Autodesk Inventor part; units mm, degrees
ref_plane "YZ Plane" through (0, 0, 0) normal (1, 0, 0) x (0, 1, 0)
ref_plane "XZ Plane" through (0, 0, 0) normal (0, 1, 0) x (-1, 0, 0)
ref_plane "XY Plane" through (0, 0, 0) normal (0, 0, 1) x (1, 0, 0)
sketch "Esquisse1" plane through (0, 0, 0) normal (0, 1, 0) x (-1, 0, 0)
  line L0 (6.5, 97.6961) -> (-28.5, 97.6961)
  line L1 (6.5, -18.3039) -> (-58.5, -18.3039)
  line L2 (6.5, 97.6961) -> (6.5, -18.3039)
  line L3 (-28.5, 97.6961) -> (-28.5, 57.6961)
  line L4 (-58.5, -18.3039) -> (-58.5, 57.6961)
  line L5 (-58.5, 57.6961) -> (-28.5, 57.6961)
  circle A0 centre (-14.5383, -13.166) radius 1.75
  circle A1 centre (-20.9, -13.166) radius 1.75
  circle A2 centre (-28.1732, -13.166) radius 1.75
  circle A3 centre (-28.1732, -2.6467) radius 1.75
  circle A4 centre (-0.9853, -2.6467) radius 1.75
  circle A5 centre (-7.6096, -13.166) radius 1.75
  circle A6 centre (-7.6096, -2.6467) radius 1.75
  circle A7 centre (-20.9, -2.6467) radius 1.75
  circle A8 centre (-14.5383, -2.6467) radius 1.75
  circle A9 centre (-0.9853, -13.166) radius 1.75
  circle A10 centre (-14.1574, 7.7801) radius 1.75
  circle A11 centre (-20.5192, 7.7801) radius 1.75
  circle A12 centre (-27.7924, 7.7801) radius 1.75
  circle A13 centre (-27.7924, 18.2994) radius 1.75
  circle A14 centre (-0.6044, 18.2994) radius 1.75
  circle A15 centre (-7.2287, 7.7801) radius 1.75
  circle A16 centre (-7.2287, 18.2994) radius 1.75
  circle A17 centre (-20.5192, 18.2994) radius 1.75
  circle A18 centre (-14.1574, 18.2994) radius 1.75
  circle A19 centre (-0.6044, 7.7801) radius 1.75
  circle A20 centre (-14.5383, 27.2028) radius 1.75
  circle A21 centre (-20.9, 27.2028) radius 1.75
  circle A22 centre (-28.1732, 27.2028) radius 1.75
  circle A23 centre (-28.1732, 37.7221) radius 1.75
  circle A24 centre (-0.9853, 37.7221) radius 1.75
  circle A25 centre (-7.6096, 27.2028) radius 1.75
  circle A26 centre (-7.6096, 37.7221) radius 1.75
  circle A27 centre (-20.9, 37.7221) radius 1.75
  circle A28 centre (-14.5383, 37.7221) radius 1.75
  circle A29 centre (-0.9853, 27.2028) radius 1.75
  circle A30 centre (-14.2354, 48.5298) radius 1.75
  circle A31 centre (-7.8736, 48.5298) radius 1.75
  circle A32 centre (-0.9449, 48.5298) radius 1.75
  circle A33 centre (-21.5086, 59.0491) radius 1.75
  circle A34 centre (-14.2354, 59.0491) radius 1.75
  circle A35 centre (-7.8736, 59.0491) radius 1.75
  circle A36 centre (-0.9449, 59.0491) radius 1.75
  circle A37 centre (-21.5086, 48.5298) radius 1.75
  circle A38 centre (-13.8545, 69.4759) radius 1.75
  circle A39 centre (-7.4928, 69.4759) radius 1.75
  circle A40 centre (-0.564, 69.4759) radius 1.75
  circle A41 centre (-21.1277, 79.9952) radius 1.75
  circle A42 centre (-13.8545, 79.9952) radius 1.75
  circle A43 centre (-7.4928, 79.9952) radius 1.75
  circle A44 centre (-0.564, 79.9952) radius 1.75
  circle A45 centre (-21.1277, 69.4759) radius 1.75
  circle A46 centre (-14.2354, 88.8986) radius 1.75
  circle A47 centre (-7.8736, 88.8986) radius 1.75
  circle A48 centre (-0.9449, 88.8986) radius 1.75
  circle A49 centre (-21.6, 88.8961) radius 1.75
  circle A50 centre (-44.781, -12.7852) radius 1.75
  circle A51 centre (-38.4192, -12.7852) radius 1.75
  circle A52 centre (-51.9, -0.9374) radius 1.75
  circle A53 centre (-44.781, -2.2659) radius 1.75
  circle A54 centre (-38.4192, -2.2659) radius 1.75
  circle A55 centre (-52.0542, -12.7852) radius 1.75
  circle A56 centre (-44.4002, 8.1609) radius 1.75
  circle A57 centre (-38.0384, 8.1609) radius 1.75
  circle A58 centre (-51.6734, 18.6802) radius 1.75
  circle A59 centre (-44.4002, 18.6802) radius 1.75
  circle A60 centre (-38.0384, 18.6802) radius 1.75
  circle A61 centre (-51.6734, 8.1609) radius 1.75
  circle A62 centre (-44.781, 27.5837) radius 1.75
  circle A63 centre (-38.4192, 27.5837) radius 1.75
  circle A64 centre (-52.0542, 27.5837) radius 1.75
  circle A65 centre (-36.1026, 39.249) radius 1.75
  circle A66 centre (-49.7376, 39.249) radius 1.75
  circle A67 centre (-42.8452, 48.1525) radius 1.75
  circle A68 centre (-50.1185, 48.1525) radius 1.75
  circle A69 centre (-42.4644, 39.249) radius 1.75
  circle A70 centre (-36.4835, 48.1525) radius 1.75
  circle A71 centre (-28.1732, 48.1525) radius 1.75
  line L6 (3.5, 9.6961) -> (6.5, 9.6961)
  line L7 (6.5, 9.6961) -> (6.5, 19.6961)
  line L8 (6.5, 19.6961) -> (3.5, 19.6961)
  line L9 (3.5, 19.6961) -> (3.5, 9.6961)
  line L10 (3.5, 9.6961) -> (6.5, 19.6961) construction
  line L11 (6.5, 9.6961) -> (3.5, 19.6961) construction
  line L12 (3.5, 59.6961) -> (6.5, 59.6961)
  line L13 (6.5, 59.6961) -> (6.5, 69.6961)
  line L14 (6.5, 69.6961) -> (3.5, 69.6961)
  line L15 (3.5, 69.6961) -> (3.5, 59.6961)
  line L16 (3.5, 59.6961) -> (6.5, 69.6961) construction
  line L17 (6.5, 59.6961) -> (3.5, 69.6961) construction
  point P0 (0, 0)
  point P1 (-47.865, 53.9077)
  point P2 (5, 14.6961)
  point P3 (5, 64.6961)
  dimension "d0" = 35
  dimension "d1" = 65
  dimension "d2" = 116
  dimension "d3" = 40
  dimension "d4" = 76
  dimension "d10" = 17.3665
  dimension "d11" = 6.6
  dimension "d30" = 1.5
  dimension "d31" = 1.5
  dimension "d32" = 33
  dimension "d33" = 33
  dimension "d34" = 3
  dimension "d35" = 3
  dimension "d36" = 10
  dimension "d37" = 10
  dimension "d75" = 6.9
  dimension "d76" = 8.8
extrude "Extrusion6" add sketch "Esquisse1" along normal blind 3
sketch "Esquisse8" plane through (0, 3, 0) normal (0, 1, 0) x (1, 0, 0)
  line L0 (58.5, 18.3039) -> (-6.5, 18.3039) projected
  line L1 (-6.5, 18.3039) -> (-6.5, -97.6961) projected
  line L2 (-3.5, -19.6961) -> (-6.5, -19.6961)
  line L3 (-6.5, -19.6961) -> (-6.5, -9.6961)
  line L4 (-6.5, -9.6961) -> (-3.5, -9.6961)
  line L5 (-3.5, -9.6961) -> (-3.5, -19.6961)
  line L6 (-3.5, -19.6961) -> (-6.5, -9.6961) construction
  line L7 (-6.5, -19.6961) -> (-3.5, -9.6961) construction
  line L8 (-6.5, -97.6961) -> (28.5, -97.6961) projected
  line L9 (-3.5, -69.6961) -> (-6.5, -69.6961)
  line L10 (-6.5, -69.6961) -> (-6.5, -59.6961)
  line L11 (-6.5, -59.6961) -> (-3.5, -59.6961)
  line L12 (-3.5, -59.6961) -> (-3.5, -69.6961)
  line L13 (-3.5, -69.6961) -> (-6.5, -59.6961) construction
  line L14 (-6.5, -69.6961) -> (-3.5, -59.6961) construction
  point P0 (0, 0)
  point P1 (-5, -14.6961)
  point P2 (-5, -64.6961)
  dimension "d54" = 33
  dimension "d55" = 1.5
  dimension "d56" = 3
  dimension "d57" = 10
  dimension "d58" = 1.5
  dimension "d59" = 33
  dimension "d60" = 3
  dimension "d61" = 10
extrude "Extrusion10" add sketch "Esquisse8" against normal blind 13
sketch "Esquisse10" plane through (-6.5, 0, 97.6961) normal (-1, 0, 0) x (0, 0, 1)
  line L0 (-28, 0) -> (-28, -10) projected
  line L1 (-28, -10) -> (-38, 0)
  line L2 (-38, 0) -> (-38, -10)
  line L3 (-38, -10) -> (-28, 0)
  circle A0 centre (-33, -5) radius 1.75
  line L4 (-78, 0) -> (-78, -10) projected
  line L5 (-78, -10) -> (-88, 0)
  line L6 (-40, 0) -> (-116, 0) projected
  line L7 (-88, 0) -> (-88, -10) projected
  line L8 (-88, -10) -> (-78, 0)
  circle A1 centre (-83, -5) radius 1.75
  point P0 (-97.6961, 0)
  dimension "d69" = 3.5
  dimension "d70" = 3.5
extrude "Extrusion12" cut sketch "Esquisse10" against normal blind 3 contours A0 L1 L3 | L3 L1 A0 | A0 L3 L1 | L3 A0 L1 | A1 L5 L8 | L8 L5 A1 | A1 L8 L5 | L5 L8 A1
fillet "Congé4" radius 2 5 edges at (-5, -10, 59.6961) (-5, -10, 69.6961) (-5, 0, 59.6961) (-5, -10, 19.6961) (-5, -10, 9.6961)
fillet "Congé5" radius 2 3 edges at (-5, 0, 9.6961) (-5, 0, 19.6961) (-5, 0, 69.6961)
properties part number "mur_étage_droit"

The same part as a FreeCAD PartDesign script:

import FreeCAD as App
import Part
import Sketcher


def edges_at(feature, points):
    """Names of the edges that pass closest to the given points."""
    edges = feature.Shape.Edges
    near = lambda p: min(range(len(edges)), key=lambda i: edges[i].distToShape(Part.Vertex(*p))[0])
    return sorted({f"Edge{near(p) + 1}" for p in points})


def add_polygon(sketch, points):
    """Adds a closed chain of lines whose ends are joined by coincident constraints."""
    first, n = sketch.GeometryCount, len(points)
    for a, b in zip(points, points[1:] + points[:1]):
        sketch.addGeometry(Part.LineSegment(App.Vector(*a, 0), App.Vector(*b, 0)), False)
    for i in range(n):
        sketch.addConstraint(Sketcher.Constraint("Coincident", first + i, 2, first + (i + 1) % n, 1))

doc = App.newDocument("Part")
body = doc.addObject("PartDesign::Body", "Body")

# Sketch on XZ plane
sketch1 = body.newObject("Sketcher::SketchObject", "Sketch")
sketch1.AttachmentSupport = (doc.getObject("XZ_Plane"), [""])
sketch1.MapMode = "FlatFace"
add_polygon(sketch1, [(-6.5, 97.6961), (28.5, 97.6961), (28.5, 57.6961), (58.5, 57.6961), (58.5, -18.3039), (-6.5, -18.3039)])  # lines 0-5
sketch1.addGeometry(Part.Circle(App.Vector(52.0542, -12.7852, 0), App.Vector(0, 0, 1), 1.75), False)  # 6
sketch1.addGeometry(Part.Circle(App.Vector(44.781, -12.7852, 0), App.Vector(0, 0, 1), 1.75), False)  # 7
sketch1.addGeometry(Part.Circle(App.Vector(51.9, -0.9374, 0), App.Vector(0, 0, 1), 1.75), False)  # 8
sketch1.addGeometry(Part.Circle(App.Vector(51.6734, 8.1609, 0), App.Vector(0, 0, 1), 1.75), False)  # 9
sketch1.addGeometry(Part.Circle(App.Vector(44.781, -2.2659, 0), App.Vector(0, 0, 1), 1.75), False)  # 10
sketch1.addGeometry(Part.Circle(App.Vector(44.4002, 8.1609, 0), App.Vector(0, 0, 1), 1.75), False)  # 11
sketch1.addGeometry(Part.Circle(App.Vector(38.4192, -12.7852, 0), App.Vector(0, 0, 1), 1.75), False)  # 12
sketch1.addGeometry(Part.Circle(App.Vector(28.1732, -13.166, 0), App.Vector(0, 0, 1), 1.75), False)  # 13
sketch1.addGeometry(Part.Circle(App.Vector(38.4192, -2.2659, 0), App.Vector(0, 0, 1), 1.75), False)  # 14
sketch1.addGeometry(Part.Circle(App.Vector(38.0384, 8.1609, 0), App.Vector(0, 0, 1), 1.75), False)  # 15
sketch1.addGeometry(Part.Circle(App.Vector(28.1732, -2.6467, 0), App.Vector(0, 0, 1), 1.75), False)  # 16
sketch1.addGeometry(Part.Circle(App.Vector(27.7924, 7.7801, 0), App.Vector(0, 0, 1), 1.75), False)  # 17
sketch1.addGeometry(Part.Circle(App.Vector(51.6734, 18.6802, 0), App.Vector(0, 0, 1), 1.75), False)  # 18
sketch1.addGeometry(Part.Circle(App.Vector(44.4002, 18.6802, 0), App.Vector(0, 0, 1), 1.75), False)  # 19
sketch1.addGeometry(Part.Circle(App.Vector(52.0542, 27.5837, 0), App.Vector(0, 0, 1), 1.75), False)  # 20
sketch1.addGeometry(Part.Circle(App.Vector(44.781, 27.5837, 0), App.Vector(0, 0, 1), 1.75), False)  # 21
sketch1.addGeometry(Part.Circle(App.Vector(49.7376, 39.249, 0), App.Vector(0, 0, 1), 1.75), False)  # 22
sketch1.addGeometry(Part.Circle(App.Vector(42.4644, 39.249, 0), App.Vector(0, 0, 1), 1.75), False)  # 23
sketch1.addGeometry(Part.Circle(App.Vector(38.0384, 18.6802, 0), App.Vector(0, 0, 1), 1.75), False)  # 24
sketch1.addGeometry(Part.Circle(App.Vector(27.7924, 18.2994, 0), App.Vector(0, 0, 1), 1.75), False)  # 25
sketch1.addGeometry(Part.Circle(App.Vector(38.4192, 27.5837, 0), App.Vector(0, 0, 1), 1.75), False)  # 26
sketch1.addGeometry(Part.Circle(App.Vector(36.1026, 39.249, 0), App.Vector(0, 0, 1), 1.75), False)  # 27
sketch1.addGeometry(Part.Circle(App.Vector(28.1732, 27.2028, 0), App.Vector(0, 0, 1), 1.75), False)  # 28
sketch1.addGeometry(Part.Circle(App.Vector(28.1732, 37.7221, 0), App.Vector(0, 0, 1), 1.75), False)  # 29
sketch1.addGeometry(Part.Circle(App.Vector(20.9, -13.166, 0), App.Vector(0, 0, 1), 1.75), False)  # 30
sketch1.addGeometry(Part.Circle(App.Vector(14.5383, -13.166, 0), App.Vector(0, 0, 1), 1.75), False)  # 31
sketch1.addGeometry(Part.Circle(App.Vector(20.9, -2.6467, 0), App.Vector(0, 0, 1), 1.75), False)  # 32
sketch1.addGeometry(Part.Circle(App.Vector(20.5192, 7.7801, 0), App.Vector(0, 0, 1), 1.75), False)  # 33
sketch1.addGeometry(Part.Circle(App.Vector(14.5383, -2.6467, 0), App.Vector(0, 0, 1), 1.75), False)  # 34
sketch1.addGeometry(Part.Circle(App.Vector(14.1574, 7.7801, 0), App.Vector(0, 0, 1), 1.75), False)  # 35
sketch1.addGeometry(Part.Circle(App.Vector(7.6096, -13.166, 0), App.Vector(0, 0, 1), 1.75), False)  # 36
sketch1.addGeometry(Part.Circle(App.Vector(0.9853, -13.166, 0), App.Vector(0, 0, 1), 1.75), False)  # 37
sketch1.addGeometry(Part.Circle(App.Vector(7.6096, -2.6467, 0), App.Vector(0, 0, 1), 1.75), False)  # 38
sketch1.addGeometry(Part.Circle(App.Vector(7.2287, 7.7801, 0), App.Vector(0, 0, 1), 1.75), False)  # 39
sketch1.addGeometry(Part.Circle(App.Vector(0.9853, -2.6467, 0), App.Vector(0, 0, 1), 1.75), False)  # 40
sketch1.addGeometry(Part.Circle(App.Vector(0.6044, 7.7801, 0), App.Vector(0, 0, 1), 1.75), False)  # 41
sketch1.addGeometry(Part.Circle(App.Vector(20.5192, 18.2994, 0), App.Vector(0, 0, 1), 1.75), False)  # 42
sketch1.addGeometry(Part.Circle(App.Vector(14.1574, 18.2994, 0), App.Vector(0, 0, 1), 1.75), False)  # 43
sketch1.addGeometry(Part.Circle(App.Vector(20.9, 27.2028, 0), App.Vector(0, 0, 1), 1.75), False)  # 44
sketch1.addGeometry(Part.Circle(App.Vector(20.9, 37.7221, 0), App.Vector(0, 0, 1), 1.75), False)  # 45
sketch1.addGeometry(Part.Circle(App.Vector(14.5383, 27.2028, 0), App.Vector(0, 0, 1), 1.75), False)  # 46
sketch1.addGeometry(Part.Circle(App.Vector(14.5383, 37.7221, 0), App.Vector(0, 0, 1), 1.75), False)  # 47
sketch1.addGeometry(Part.Circle(App.Vector(7.2287, 18.2994, 0), App.Vector(0, 0, 1), 1.75), False)  # 48
sketch1.addGeometry(Part.Circle(App.Vector(0.6044, 18.2994, 0), App.Vector(0, 0, 1), 1.75), False)  # 49
sketch1.addGeometry(Part.Circle(App.Vector(7.6096, 27.2028, 0), App.Vector(0, 0, 1), 1.75), False)  # 50
sketch1.addGeometry(Part.Circle(App.Vector(7.6096, 37.7221, 0), App.Vector(0, 0, 1), 1.75), False)  # 51
sketch1.addGeometry(Part.Circle(App.Vector(0.9853, 27.2028, 0), App.Vector(0, 0, 1), 1.75), False)  # 52
sketch1.addGeometry(Part.Circle(App.Vector(0.9853, 37.7221, 0), App.Vector(0, 0, 1), 1.75), False)  # 53
sketch1.addGeometry(Part.Circle(App.Vector(50.1185, 48.1525, 0), App.Vector(0, 0, 1), 1.75), False)  # 54
sketch1.addGeometry(Part.Circle(App.Vector(42.8452, 48.1525, 0), App.Vector(0, 0, 1), 1.75), False)  # 55
sketch1.addGeometry(Part.Circle(App.Vector(36.4835, 48.1525, 0), App.Vector(0, 0, 1), 1.75), False)  # 56
sketch1.addGeometry(Part.Circle(App.Vector(28.1732, 48.1525, 0), App.Vector(0, 0, 1), 1.75), False)  # 57
sketch1.addGeometry(Part.Circle(App.Vector(21.5086, 48.5298, 0), App.Vector(0, 0, 1), 1.75), False)  # 58
sketch1.addGeometry(Part.Circle(App.Vector(14.2354, 48.5298, 0), App.Vector(0, 0, 1), 1.75), False)  # 59
sketch1.addGeometry(Part.Circle(App.Vector(21.5086, 59.0491, 0), App.Vector(0, 0, 1), 1.75), False)  # 60
sketch1.addGeometry(Part.Circle(App.Vector(14.2354, 59.0491, 0), App.Vector(0, 0, 1), 1.75), False)  # 61
sketch1.addGeometry(Part.Circle(App.Vector(7.8736, 48.5298, 0), App.Vector(0, 0, 1), 1.75), False)  # 62
sketch1.addGeometry(Part.Circle(App.Vector(0.9449, 48.5298, 0), App.Vector(0, 0, 1), 1.75), False)  # 63
sketch1.addGeometry(Part.Circle(App.Vector(7.8736, 59.0491, 0), App.Vector(0, 0, 1), 1.75), False)  # 64
sketch1.addGeometry(Part.Circle(App.Vector(0.9449, 59.0491, 0), App.Vector(0, 0, 1), 1.75), False)  # 65
sketch1.addGeometry(Part.Circle(App.Vector(21.1277, 69.4759, 0), App.Vector(0, 0, 1), 1.75), False)  # 66
sketch1.addGeometry(Part.Circle(App.Vector(21.1277, 79.9952, 0), App.Vector(0, 0, 1), 1.75), False)  # 67
sketch1.addGeometry(Part.Circle(App.Vector(13.8545, 69.4759, 0), App.Vector(0, 0, 1), 1.75), False)  # 68
sketch1.addGeometry(Part.Circle(App.Vector(13.8545, 79.9952, 0), App.Vector(0, 0, 1), 1.75), False)  # 69
sketch1.addGeometry(Part.Circle(App.Vector(21.6, 88.8961, 0), App.Vector(0, 0, 1), 1.75), False)  # 70
sketch1.addGeometry(Part.Circle(App.Vector(14.2354, 88.8986, 0), App.Vector(0, 0, 1), 1.75), False)  # 71
sketch1.addGeometry(Part.Circle(App.Vector(7.4928, 69.4759, 0), App.Vector(0, 0, 1), 1.75), False)  # 72
sketch1.addGeometry(Part.Circle(App.Vector(7.4928, 79.9952, 0), App.Vector(0, 0, 1), 1.75), False)  # 73
sketch1.addGeometry(Part.Circle(App.Vector(0.564, 69.4759, 0), App.Vector(0, 0, 1), 1.75), False)  # 74
sketch1.addGeometry(Part.Circle(App.Vector(0.564, 79.9952, 0), App.Vector(0, 0, 1), 1.75), False)  # 75
sketch1.addGeometry(Part.Circle(App.Vector(7.8736, 88.8986, 0), App.Vector(0, 0, 1), 1.75), False)  # 76
sketch1.addGeometry(Part.Circle(App.Vector(0.9449, 88.8986, 0), App.Vector(0, 0, 1), 1.75), False)  # 77
sketch1.addConstraint(Sketcher.Constraint("Horizontal", 0))
sketch1.addConstraint(Sketcher.Constraint("Vertical", 1))
sketch1.addConstraint(Sketcher.Constraint("Horizontal", 2))
sketch1.addConstraint(Sketcher.Constraint("Vertical", 3))
sketch1.addConstraint(Sketcher.Constraint("Horizontal", 4))
sketch1.addConstraint(Sketcher.Constraint("Vertical", 5))
sketch1.addConstraint(Sketcher.Constraint("Equal", 6, 7))
sketch1.addConstraint(Sketcher.Constraint("Equal", 7, 8))
sketch1.addConstraint(Sketcher.Constraint("Equal", 8, 9))
sketch1.addConstraint(Sketcher.Constraint("Equal", 9, 10))
sketch1.addConstraint(Sketcher.Constraint("Equal", 10, 11))
sketch1.addConstraint(Sketcher.Constraint("Equal", 11, 12))
sketch1.addConstraint(Sketcher.Constraint("Equal", 12, 13))
sketch1.addConstraint(Sketcher.Constraint("Equal", 13, 14))
sketch1.addConstraint(Sketcher.Constraint("Equal", 14, 15))
sketch1.addConstraint(Sketcher.Constraint("Equal", 15, 16))
sketch1.addConstraint(Sketcher.Constraint("Equal", 16, 17))
sketch1.addConstraint(Sketcher.Constraint("Equal", 17, 18))
sketch1.addConstraint(Sketcher.Constraint("Equal", 18, 19))
sketch1.addConstraint(Sketcher.Constraint("Equal", 19, 20))
sketch1.addConstraint(Sketcher.Constraint("Equal", 20, 21))
sketch1.addConstraint(Sketcher.Constraint("Equal", 21, 22))
sketch1.addConstraint(Sketcher.Constraint("Equal", 22, 23))
sketch1.addConstraint(Sketcher.Constraint("Equal", 23, 24))
sketch1.addConstraint(Sketcher.Constraint("Equal", 24, 25))
sketch1.addConstraint(Sketcher.Constraint("Equal", 25, 26))
sketch1.addConstraint(Sketcher.Constraint("Equal", 26, 27))
sketch1.addConstraint(Sketcher.Constraint("Equal", 27, 28))
sketch1.addConstraint(Sketcher.Constraint("Equal", 28, 29))
sketch1.addConstraint(Sketcher.Constraint("Equal", 29, 30))
sketch1.addConstraint(Sketcher.Constraint("Equal", 30, 31))
sketch1.addConstraint(Sketcher.Constraint("Equal", 31, 32))
sketch1.addConstraint(Sketcher.Constraint("Equal", 32, 33))
sketch1.addConstraint(Sketcher.Constraint("Equal", 33, 34))
sketch1.addConstraint(Sketcher.Constraint("Equal", 34, 35))
sketch1.addConstraint(Sketcher.Constraint("Equal", 35, 36))
sketch1.addConstraint(Sketcher.Constraint("Equal", 36, 37))
sketch1.addConstraint(Sketcher.Constraint("Equal", 37, 38))
sketch1.addConstraint(Sketcher.Constraint("Equal", 38, 39))
sketch1.addConstraint(Sketcher.Constraint("Equal", 39, 40))
sketch1.addConstraint(Sketcher.Constraint("Equal", 40, 41))
sketch1.addConstraint(Sketcher.Constraint("Equal", 41, 42))
sketch1.addConstraint(Sketcher.Constraint("Equal", 42, 43))
sketch1.addConstraint(Sketcher.Constraint("Equal", 43, 44))
sketch1.addConstraint(Sketcher.Constraint("Equal", 44, 45))
sketch1.addConstraint(Sketcher.Constraint("Equal", 45, 46))
sketch1.addConstraint(Sketcher.Constraint("Equal", 46, 47))
sketch1.addConstraint(Sketcher.Constraint("Equal", 47, 48))
sketch1.addConstraint(Sketcher.Constraint("Equal", 48, 49))
sketch1.addConstraint(Sketcher.Constraint("Equal", 49, 50))
sketch1.addConstraint(Sketcher.Constraint("Equal", 50, 51))
sketch1.addConstraint(Sketcher.Constraint("Equal", 51, 52))
sketch1.addConstraint(Sketcher.Constraint("Equal", 52, 53))
sketch1.addConstraint(Sketcher.Constraint("Equal", 53, 54))
sketch1.addConstraint(Sketcher.Constraint("Equal", 54, 55))
sketch1.addConstraint(Sketcher.Constraint("Equal", 55, 56))
sketch1.addConstraint(Sketcher.Constraint("Equal", 56, 57))
sketch1.addConstraint(Sketcher.Constraint("Equal", 57, 58))
sketch1.addConstraint(Sketcher.Constraint("Equal", 58, 59))
sketch1.addConstraint(Sketcher.Constraint("Equal", 59, 60))
sketch1.addConstraint(Sketcher.Constraint("Equal", 60, 61))
sketch1.addConstraint(Sketcher.Constraint("Equal", 61, 62))
sketch1.addConstraint(Sketcher.Constraint("Equal", 62, 63))
sketch1.addConstraint(Sketcher.Constraint("Equal", 63, 64))
sketch1.addConstraint(Sketcher.Constraint("Equal", 64, 65))
sketch1.addConstraint(Sketcher.Constraint("Equal", 65, 66))
sketch1.addConstraint(Sketcher.Constraint("Equal", 66, 67))
sketch1.addConstraint(Sketcher.Constraint("Equal", 67, 68))
sketch1.addConstraint(Sketcher.Constraint("Equal", 68, 69))
sketch1.addConstraint(Sketcher.Constraint("Equal", 69, 70))
sketch1.addConstraint(Sketcher.Constraint("Equal", 70, 71))
sketch1.addConstraint(Sketcher.Constraint("Equal", 71, 72))
sketch1.addConstraint(Sketcher.Constraint("Equal", 72, 73))
sketch1.addConstraint(Sketcher.Constraint("Equal", 73, 74))
sketch1.addConstraint(Sketcher.Constraint("Equal", 74, 75))
sketch1.addConstraint(Sketcher.Constraint("Equal", 75, 76))
sketch1.addConstraint(Sketcher.Constraint("Equal", 76, 77))
sketch1.addConstraint(Sketcher.Constraint("Horizontal", 6, 3, 7, 3))
sketch1.addConstraint(Sketcher.Constraint("Horizontal", 9, 3, 11, 3))
sketch1.addConstraint(Sketcher.Constraint("Horizontal", 7, 3, 12, 3))
sketch1.addConstraint(Sketcher.Constraint("Horizontal", 10, 3, 14, 3))
sketch1.addConstraint(Sketcher.Constraint("Horizontal", 11, 3, 15, 3))
sketch1.addConstraint(Sketcher.Constraint("Horizontal", 18, 3, 19, 3))
sketch1.addConstraint(Sketcher.Constraint("Horizontal", 20, 3, 21, 3))
sketch1.addConstraint(Sketcher.Constraint("Horizontal", 22, 3, 23, 3))
sketch1.addConstraint(Sketcher.Constraint("Horizontal", 19, 3, 24, 3))
sketch1.addConstraint(Sketcher.Constraint("Horizontal", 21, 3, 26, 3))
sketch1.addConstraint(Sketcher.Constraint("Horizontal", 23, 3, 27, 3))
sketch1.addConstraint(Sketcher.Constraint("Horizontal", 13, 3, 30, 3))
sketch1.addConstraint(Sketcher.Constraint("Horizontal", 30, 3, 31, 3))
sketch1.addConstraint(Sketcher.Constraint("Horizontal", 16, 3, 32, 3))
sketch1.addConstraint(Sketcher.Constraint("Horizontal", 17, 3, 33, 3))
sketch1.addConstraint(Sketcher.Constraint("Horizontal", 32, 3, 34, 3))
sketch1.addConstraint(Sketcher.Constraint("Horizontal", 33, 3, 35, 3))
sketch1.addConstraint(Sketcher.Constraint("Horizontal", 31, 3, 36, 3))
sketch1.addConstraint(Sketcher.Constraint("Horizontal", 36, 3, 37, 3))
sketch1.addConstraint(Sketcher.Constraint("Horizontal", 34, 3, 38, 3))
sketch1.addConstraint(Sketcher.Constraint("Horizontal", 35, 3, 39, 3))
sketch1.addConstraint(Sketcher.Constraint("Horizontal", 38, 3, 40, 3))
sketch1.addConstraint(Sketcher.Constraint("Horizontal", 39, 3, 41, 3))
sketch1.addConstraint(Sketcher.Constraint("Horizontal", 25, 3, 42, 3))
sketch1.addConstraint(Sketcher.Constraint("Horizontal", 42, 3, 43, 3))
sketch1.addConstraint(Sketcher.Constraint("Horizontal", 28, 3, 44, 3))
sketch1.addConstraint(Sketcher.Constraint("Horizontal", 29, 3, 45, 3))
sketch1.addConstraint(Sketcher.Constraint("Horizontal", 44, 3, 46, 3))
sketch1.addConstraint(Sketcher.Constraint("Horizontal", 45, 3, 47, 3))
sketch1.addConstraint(Sketcher.Constraint("Horizontal", 43, 3, 48, 3))
sketch1.addConstraint(Sketcher.Constraint("Horizontal", 48, 3, 49, 3))
sketch1.addConstraint(Sketcher.Constraint("Horizontal", 46, 3, 50, 3))
sketch1.addConstraint(Sketcher.Constraint("Horizontal", 47, 3, 51, 3))
sketch1.addConstraint(Sketcher.Constraint("Horizontal", 50, 3, 52, 3))
sketch1.addConstraint(Sketcher.Constraint("Horizontal", 51, 3, 53, 3))
sketch1.addConstraint(Sketcher.Constraint("Horizontal", 54, 3, 55, 3))
sketch1.addConstraint(Sketcher.Constraint("Horizontal", 55, 3, 56, 3))
sketch1.addConstraint(Sketcher.Constraint("Horizontal", 56, 3, 57, 3))
sketch1.addConstraint(Sketcher.Constraint("Horizontal", 58, 3, 59, 3))
sketch1.addConstraint(Sketcher.Constraint("Horizontal", 60, 3, 61, 3))
sketch1.addConstraint(Sketcher.Constraint("Horizontal", 59, 3, 62, 3))
sketch1.addConstraint(Sketcher.Constraint("Horizontal", 62, 3, 63, 3))
sketch1.addConstraint(Sketcher.Constraint("Horizontal", 61, 3, 64, 3))
sketch1.addConstraint(Sketcher.Constraint("Horizontal", 64, 3, 65, 3))
sketch1.addConstraint(Sketcher.Constraint("Horizontal", 66, 3, 68, 3))
sketch1.addConstraint(Sketcher.Constraint("Horizontal", 67, 3, 69, 3))
sketch1.addConstraint(Sketcher.Constraint("Horizontal", 68, 3, 72, 3))
sketch1.addConstraint(Sketcher.Constraint("Horizontal", 69, 3, 73, 3))
sketch1.addConstraint(Sketcher.Constraint("Horizontal", 72, 3, 74, 3))
sketch1.addConstraint(Sketcher.Constraint("Horizontal", 73, 3, 75, 3))
sketch1.addConstraint(Sketcher.Constraint("Horizontal", 71, 3, 76, 3))
sketch1.addConstraint(Sketcher.Constraint("Horizontal", 76, 3, 77, 3))
sketch1.addConstraint(Sketcher.Constraint("Vertical", 7, 3, 10, 3))
sketch1.addConstraint(Sketcher.Constraint("Vertical", 12, 3, 14, 3))
sketch1.addConstraint(Sketcher.Constraint("Vertical", 13, 3, 16, 3))
sketch1.addConstraint(Sketcher.Constraint("Vertical", 9, 3, 18, 3))
sketch1.addConstraint(Sketcher.Constraint("Vertical", 11, 3, 19, 3))
sketch1.addConstraint(Sketcher.Constraint("Vertical", 6, 3, 20, 3))
sketch1.addConstraint(Sketcher.Constraint("Vertical", 10, 3, 21, 3))
sketch1.addConstraint(Sketcher.Constraint("Vertical", 15, 3, 24, 3))
sketch1.addConstraint(Sketcher.Constraint("Vertical", 17, 3, 25, 3))
sketch1.addConstraint(Sketcher.Constraint("Vertical", 14, 3, 26, 3))
sketch1.addConstraint(Sketcher.Constraint("Vertical", 16, 3, 28, 3))
sketch1.addConstraint(Sketcher.Constraint("Vertical", 28, 3, 29, 3))
sketch1.addConstraint(Sketcher.Constraint("Vertical", 30, 3, 32, 3))
sketch1.addConstraint(Sketcher.Constraint("Vertical", 31, 3, 34, 3))
sketch1.addConstraint(Sketcher.Constraint("Vertical", 36, 3, 38, 3))
sketch1.addConstraint(Sketcher.Constraint("Vertical", 37, 3, 40, 3))
sketch1.addConstraint(Sketcher.Constraint("Vertical", 33, 3, 42, 3))
sketch1.addConstraint(Sketcher.Constraint("Vertical", 35, 3, 43, 3))
sketch1.addConstraint(Sketcher.Constraint("Vertical", 32, 3, 44, 3))
sketch1.addConstraint(Sketcher.Constraint("Vertical", 44, 3, 45, 3))
sketch1.addConstraint(Sketcher.Constraint("Vertical", 34, 3, 46, 3))
sketch1.addConstraint(Sketcher.Constraint("Vertical", 46, 3, 47, 3))
sketch1.addConstraint(Sketcher.Constraint("Vertical", 39, 3, 48, 3))
sketch1.addConstraint(Sketcher.Constraint("Vertical", 41, 3, 49, 3))
sketch1.addConstraint(Sketcher.Constraint("Vertical", 38, 3, 50, 3))
sketch1.addConstraint(Sketcher.Constraint("Vertical", 50, 3, 51, 3))
sketch1.addConstraint(Sketcher.Constraint("Vertical", 40, 3, 52, 3))
sketch1.addConstraint(Sketcher.Constraint("Vertical", 52, 3, 53, 3))
sketch1.addConstraint(Sketcher.Constraint("Vertical", 29, 3, 57, 3))
sketch1.addConstraint(Sketcher.Constraint("Vertical", 58, 3, 60, 3))
sketch1.addConstraint(Sketcher.Constraint("Vertical", 59, 3, 61, 3))
sketch1.addConstraint(Sketcher.Constraint("Vertical", 62, 3, 64, 3))
sketch1.addConstraint(Sketcher.Constraint("Vertical", 63, 3, 65, 3))
sketch1.addConstraint(Sketcher.Constraint("Vertical", 66, 3, 67, 3))
sketch1.addConstraint(Sketcher.Constraint("Vertical", 68, 3, 69, 3))
sketch1.addConstraint(Sketcher.Constraint("Vertical", 61, 3, 71, 3))
sketch1.addConstraint(Sketcher.Constraint("Vertical", 72, 3, 73, 3))
sketch1.addConstraint(Sketcher.Constraint("Vertical", 74, 3, 75, 3))
sketch1.addConstraint(Sketcher.Constraint("Vertical", 64, 3, 76, 3))
sketch1.addConstraint(Sketcher.Constraint("Vertical", 65, 3, 77, 3))
sketch1.addConstraint(Sketcher.Constraint("DistanceX", 0, 1, 0, 2, 35.0))
sketch1.addConstraint(Sketcher.Constraint("DistanceX", 4, 2, 4, 1, 65.0))
sketch1.addConstraint(Sketcher.Constraint("DistanceY", 1, 2, 1, 1, 40.0))
sketch1.addConstraint(Sketcher.Constraint("DistanceY", 3, 2, 3, 1, 76.0))
sketch1.addConstraint(Sketcher.Constraint("Diameter", 6, 3.5))
sketch1.addConstraint(Sketcher.Constraint("DistanceX", -1, 1, 8, 3, 51.9))
sketch1.addConstraint(Sketcher.Constraint("DistanceX", -1, 1, 30, 3, 20.9))
sketch1.addConstraint(Sketcher.Constraint("DistanceX", -1, 1, 70, 3, 21.6))
sketch1.addConstraint(Sketcher.Constraint("DistanceX", -1, 1, 0, 2, 28.5))
sketch1.addConstraint(Sketcher.Constraint("DistanceY", -1, 1, 17, 3, 7.78))
sketch1.addConstraint(Sketcher.Constraint("DistanceX", -1, 1, 7, 3, 44.781))
sketch1.addConstraint(Sketcher.Constraint("DistanceY", -1, 1, 9, 3, 8.161))
sketch1.addConstraint(Sketcher.Constraint("DistanceY", 10, 3, -1, 1, 2.266))
sketch1.addConstraint(Sketcher.Constraint("DistanceY", 13, 3, -1, 1, 13.166))
sketch1.addConstraint(Sketcher.Constraint("DistanceY", -1, 1, 22, 3, 39.249))
sketch1.addConstraint(Sketcher.Constraint("DistanceY", -1, 1, 29, 3, 37.722))
sketch1.addConstraint(Sketcher.Constraint("DistanceY", -1, 1, 60, 3, 59.049))
sketch1.addConstraint(Sketcher.Constraint("DistanceX", -1, 1, 63, 3, 0.945))
sketch1.addConstraint(Sketcher.Constraint("DistanceY", -1, 1, 66, 3, 69.476))
sketch1.addConstraint(Sketcher.Constraint("DistanceY", -1, 1, 70, 3, 88.896))
sketch1.addConstraint(Sketcher.Constraint("DistanceX", -1, 1, 74, 3, 0.564))
sketch1.addConstraint(Sketcher.Constraint("DistanceY", -1, 1, 0, 2, 97.696))
sketch1.addConstraint(Sketcher.Constraint("DistanceX", -1, 1, 6, 3, 52.0542))
sketch1.addConstraint(Sketcher.Constraint("DistanceY", 6, 3, -1, 1, 12.7852))
sketch1.addConstraint(Sketcher.Constraint("DistanceY", 8, 3, -1, 1, 0.9374))
sketch1.addConstraint(Sketcher.Constraint("DistanceX", -1, 1, 9, 3, 51.6734))
sketch1.addConstraint(Sketcher.Constraint("DistanceX", -1, 1, 11, 3, 44.4002))
sketch1.addConstraint(Sketcher.Constraint("DistanceX", -1, 1, 12, 3, 38.4192))
sketch1.addConstraint(Sketcher.Constraint("DistanceX", -1, 1, 13, 3, 28.1732))
sketch1.addConstraint(Sketcher.Constraint("DistanceX", -1, 1, 15, 3, 38.0384))
sketch1.addConstraint(Sketcher.Constraint("DistanceY", 16, 3, -1, 1, 2.6467))
sketch1.addConstraint(Sketcher.Constraint("DistanceX", -1, 1, 17, 3, 27.7924))
sketch1.addConstraint(Sketcher.Constraint("DistanceY", -1, 1, 18, 3, 18.6802))
sketch1.addConstraint(Sketcher.Constraint("DistanceY", -1, 1, 20, 3, 27.5837))
sketch1.addConstraint(Sketcher.Constraint("DistanceX", -1, 1, 22, 3, 49.7376))
sketch1.addConstraint(Sketcher.Constraint("DistanceX", -1, 1, 23, 3, 42.4644))
sketch1.addConstraint(Sketcher.Constraint("DistanceY", -1, 1, 25, 3, 18.2994))
sketch1.addConstraint(Sketcher.Constraint("DistanceX", -1, 1, 27, 3, 36.1026))
sketch1.addConstraint(Sketcher.Constraint("DistanceY", -1, 1, 28, 3, 27.2028))
sketch1.addConstraint(Sketcher.Constraint("DistanceX", -1, 1, 31, 3, 14.5383))
sketch1.addConstraint(Sketcher.Constraint("DistanceX", -1, 1, 33, 3, 20.5192))
sketch1.addConstraint(Sketcher.Constraint("DistanceX", -1, 1, 35, 3, 14.1574))
sketch1.addConstraint(Sketcher.Constraint("DistanceX", -1, 1, 36, 3, 7.6096))
sketch1.addConstraint(Sketcher.Constraint("DistanceX", -1, 1, 37, 3, 0.9853))
sketch1.addConstraint(Sketcher.Constraint("DistanceX", -1, 1, 39, 3, 7.2287))
sketch1.addConstraint(Sketcher.Constraint("DistanceX", -1, 1, 41, 3, 0.6044))
sketch1.addConstraint(Sketcher.Constraint("DistanceX", -1, 1, 54, 3, 50.1185))
sketch1.addConstraint(Sketcher.Constraint("DistanceY", -1, 1, 54, 3, 48.1525))
sketch1.addConstraint(Sketcher.Constraint("DistanceX", -1, 1, 55, 3, 42.8452))
sketch1.addConstraint(Sketcher.Constraint("DistanceX", -1, 1, 56, 3, 36.4835))
sketch1.addConstraint(Sketcher.Constraint("DistanceX", -1, 1, 58, 3, 21.5086))
sketch1.addConstraint(Sketcher.Constraint("DistanceY", -1, 1, 58, 3, 48.5298))
sketch1.addConstraint(Sketcher.Constraint("DistanceX", -1, 1, 59, 3, 14.2354))
sketch1.addConstraint(Sketcher.Constraint("DistanceX", -1, 1, 62, 3, 7.8736))
sketch1.addConstraint(Sketcher.Constraint("DistanceX", -1, 1, 66, 3, 21.1277))
sketch1.addConstraint(Sketcher.Constraint("DistanceY", -1, 1, 67, 3, 79.9952))
sketch1.addConstraint(Sketcher.Constraint("DistanceX", -1, 1, 68, 3, 13.8545))
sketch1.addConstraint(Sketcher.Constraint("DistanceY", -1, 1, 71, 3, 88.8986))
sketch1.addConstraint(Sketcher.Constraint("DistanceX", -1, 1, 72, 3, 7.4928))
pad1 = body.newObject("PartDesign::Pad", "Pad")
pad1.Profile = sketch1
pad1.Length = 3
pad1.Reversed = True

# Sketch on XZ plane
sketch2 = body.newObject("Sketcher::SketchObject", "Sketch001")
sketch2.AttachmentSupport = (doc.getObject("XZ_Plane"), [""])
sketch2.MapMode = "FlatFace"
sketch2.AttachmentOffset = App.Placement(App.Vector(0, 0, -3), App.Rotation())
add_polygon(sketch2, [(-3.5, 9.6961), (-6.5, 9.6961), (-6.5, 19.6961), (-3.5, 19.6961)])  # lines 0-3
add_polygon(sketch2, [(-3.5, 59.6961), (-6.5, 59.6961), (-6.5, 69.6961), (-3.5, 69.6961)])  # lines 4-7
sketch2.addConstraint(Sketcher.Constraint("Horizontal", 0))
sketch2.addConstraint(Sketcher.Constraint("Vertical", 1))
sketch2.addConstraint(Sketcher.Constraint("Horizontal", 2))
sketch2.addConstraint(Sketcher.Constraint("Vertical", 3))
sketch2.addConstraint(Sketcher.Constraint("Horizontal", 4))
sketch2.addConstraint(Sketcher.Constraint("Vertical", 5))
sketch2.addConstraint(Sketcher.Constraint("Horizontal", 6))
sketch2.addConstraint(Sketcher.Constraint("Vertical", 7))
sketch2.addConstraint(Sketcher.Constraint("Vertical", 1, 2, 4, 2))
sketch2.addConstraint(Sketcher.Constraint("Vertical", 3, 2, 6, 2))
sketch2.addConstraint(Sketcher.Constraint("Equal", 3, 5))
sketch2.addConstraint(Sketcher.Constraint("DistanceX", 0, 2, 0, 1, 3.0))
sketch2.addConstraint(Sketcher.Constraint("DistanceY", 1, 1, 1, 2, 10.0))
sketch2.addConstraint(Sketcher.Constraint("DistanceY", 1, 2, 4, 2, 40.0))
sketch2.addConstraint(Sketcher.Constraint("DistanceX", 0, 2, -1, 1, 6.5))
sketch2.addConstraint(Sketcher.Constraint("DistanceY", -1, 1, 0, 2, 9.696))
pad2 = body.newObject("PartDesign::Pad", "Pad001")
pad2.Profile = sketch2
pad2.Length = 13

# Sketch on YZ plane
sketch3 = body.newObject("Sketcher::SketchObject", "Sketch002")
sketch3.AttachmentSupport = (doc.getObject("YZ_Plane"), [""])
sketch3.MapMode = "FlatFace"
sketch3.AttachmentOffset = App.Placement(App.Vector(0, 0, -6.5), App.Rotation())
sketch3.addGeometry(Part.Circle(App.Vector(-5, 64.6961, 0), App.Vector(0, 0, 1), 1.75), False)
sketch3.addGeometry(Part.Circle(App.Vector(-5, 14.6961, 0), App.Vector(0, 0, 1), 1.75), False)
sketch3.addConstraint(Sketcher.Constraint("Equal", 0, 1))
sketch3.addConstraint(Sketcher.Constraint("Vertical", 0, 3, 1, 3))
sketch3.addConstraint(Sketcher.Constraint("Diameter", 0, 3.5))
sketch3.addConstraint(Sketcher.Constraint("DistanceX", 0, 3, -1, 1, 5.0))
sketch3.addConstraint(Sketcher.Constraint("DistanceY", 1, 3, 0, 3, 50.0))
sketch3.addConstraint(Sketcher.Constraint("DistanceY", -1, 1, 0, 3, 64.696))
pocket1 = body.newObject("PartDesign::Pocket", "Pocket")
pocket1.Profile = sketch3
pocket1.Length = 3
pocket1.Reversed = True
doc.recompute()

fillet = body.newObject("PartDesign::Fillet", "Fillet")
fillet.Base = (pocket1, edges_at(pocket1, [
    (-5, -10, 59.696),
    (-5, -10, 69.696),
    (-5, 0, 59.696),
    (-5, -10, 19.696),
    (-5, -10, 9.696),
]))
fillet.Radius = 2
doc.recompute()

fillet2 = body.newObject("PartDesign::Fillet", "Fillet001")
fillet2.Base = (fillet, edges_at(fillet, [(-5, 0, 9.696), (-5, 0, 19.696), (-5, 0, 69.696)]))
fillet2.Radius = 2

doc.recompute()
